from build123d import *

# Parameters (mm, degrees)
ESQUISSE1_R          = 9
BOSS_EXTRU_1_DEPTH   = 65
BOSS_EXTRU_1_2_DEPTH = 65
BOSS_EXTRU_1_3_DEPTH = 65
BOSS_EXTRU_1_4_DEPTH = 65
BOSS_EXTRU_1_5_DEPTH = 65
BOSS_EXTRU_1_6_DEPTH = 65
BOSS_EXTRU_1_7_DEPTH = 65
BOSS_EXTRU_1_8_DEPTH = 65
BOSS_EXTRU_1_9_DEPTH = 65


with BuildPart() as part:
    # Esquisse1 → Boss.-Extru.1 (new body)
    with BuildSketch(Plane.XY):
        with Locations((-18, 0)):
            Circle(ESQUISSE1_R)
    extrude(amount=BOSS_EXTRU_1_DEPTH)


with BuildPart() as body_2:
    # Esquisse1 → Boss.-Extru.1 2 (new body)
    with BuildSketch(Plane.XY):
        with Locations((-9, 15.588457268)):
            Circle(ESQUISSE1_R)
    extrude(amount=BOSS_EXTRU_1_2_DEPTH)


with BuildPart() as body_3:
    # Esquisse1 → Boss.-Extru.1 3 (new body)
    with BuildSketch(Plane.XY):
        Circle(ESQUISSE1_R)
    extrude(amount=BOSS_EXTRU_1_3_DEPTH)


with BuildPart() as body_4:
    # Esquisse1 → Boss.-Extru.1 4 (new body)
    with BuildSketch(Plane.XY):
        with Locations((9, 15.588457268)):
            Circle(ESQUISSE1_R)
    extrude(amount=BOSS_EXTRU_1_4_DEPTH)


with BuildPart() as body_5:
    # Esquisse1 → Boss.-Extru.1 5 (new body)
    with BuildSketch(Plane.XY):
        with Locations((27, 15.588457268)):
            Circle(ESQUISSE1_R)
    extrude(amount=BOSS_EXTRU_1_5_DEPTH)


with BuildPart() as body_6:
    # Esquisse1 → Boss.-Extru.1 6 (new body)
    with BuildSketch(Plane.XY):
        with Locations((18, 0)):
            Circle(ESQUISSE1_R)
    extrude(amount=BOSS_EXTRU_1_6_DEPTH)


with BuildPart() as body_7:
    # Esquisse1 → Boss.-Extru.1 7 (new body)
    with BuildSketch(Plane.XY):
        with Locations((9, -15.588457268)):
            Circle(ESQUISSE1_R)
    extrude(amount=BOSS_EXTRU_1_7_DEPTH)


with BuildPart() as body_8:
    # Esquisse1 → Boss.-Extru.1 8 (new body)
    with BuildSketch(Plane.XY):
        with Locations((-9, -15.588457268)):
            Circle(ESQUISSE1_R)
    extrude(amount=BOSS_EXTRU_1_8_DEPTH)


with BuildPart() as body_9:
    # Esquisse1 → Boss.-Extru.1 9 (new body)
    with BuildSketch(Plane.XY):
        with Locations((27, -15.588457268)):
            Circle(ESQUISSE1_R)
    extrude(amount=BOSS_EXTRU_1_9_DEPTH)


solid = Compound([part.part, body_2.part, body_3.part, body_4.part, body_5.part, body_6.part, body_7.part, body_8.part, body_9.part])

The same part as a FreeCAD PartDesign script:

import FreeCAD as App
import Part
import Sketcher
from FreeCAD import Vector

doc = App.newDocument("Part")
params = doc.addObject("Spreadsheet::Sheet", "Params")
for row, (alias, value) in enumerate([
    ("sketch1_diameter", "18 mm"),
    ("pad1_length", "65 mm"),
    ("sketch2_diameter", "18 mm"),
    ("pad2_length", "65 mm"),
    ("sketch3_diameter", "18 mm"),
    ("pad3_length", "65 mm"),
    ("sketch4_diameter", "18 mm"),
    ("pad4_length", "65 mm"),
    ("sketch5_diameter", "18 mm"),
    ("pad5_length", "65 mm"),
    ("sketch6_diameter", "18 mm"),
    ("pad6_length", "65 mm"),
    ("sketch7_diameter", "18 mm"),
    ("pad7_length", "65 mm"),
    ("sketch8_diameter", "18 mm"),
    ("pad8_length", "65 mm"),
    ("sketch9_diameter", "18 mm"),
    ("pad9_length", "65 mm"),
], start=1):
    params.set(f"A{row}", alias)
    params.set(f"B{row}", "=" + value)
    params.setAlias(f"B{row}", alias)

body = doc.addObject("PartDesign::Body", "Body")

# Sketch on XY plane
sketch1 = body.newObject("Sketcher::SketchObject", "Sketch")
sketch1.AttachmentSupport = (doc.getObject("XY_Plane"), [""])
sketch1.MapMode = "FlatFace"
sketch1.addGeometry(Part.Circle(Vector(-18, 0, 0), Vector(0, 0, 1), 9), False)
sketch1.addConstraint(Sketcher.Constraint("PointOnObject", 0, 3, -1))
sketch1.addConstraint(Sketcher.Constraint("Diameter", 0, 18.0))
sketch1.addConstraint(Sketcher.Constraint("DistanceX", 0, 3, -1, 1, 18.0))
sketch1.setExpression("Constraints[1]", "Params.sketch1_diameter")
pad1 = body.newObject("PartDesign::Pad", "Pad")
pad1.Profile = sketch1
pad1.setExpression("Length", "Params.pad1_length")
body2 = doc.addObject("PartDesign::Body", "Body001")

# Sketch on XY plane
sketch2 = body2.newObject("Sketcher::SketchObject", "Sketch001")
sketch2.AttachmentSupport = (doc.getObject("XY_Plane001"), [""])
sketch2.MapMode = "FlatFace"
sketch2.addGeometry(Part.Circle(Vector(-9, 16, 0), Vector(0, 0, 1), 9), False)
sketch2.addConstraint(Sketcher.Constraint("Diameter", 0, 18.0))
sketch2.addConstraint(Sketcher.Constraint("DistanceX", 0, 3, -1, 1, 9.0))
sketch2.addConstraint(Sketcher.Constraint("DistanceY", -1, 1, 0, 3, 15.588457))
sketch2.setExpression("Constraints[0]", "Params.sketch2_diameter")
pad2 = body2.newObject("PartDesign::Pad", "Pad001")
pad2.Profile = sketch2
pad2.setExpression("Length", "Params.pad2_length")
body3 = doc.addObject("PartDesign::Body", "Body002")

# Sketch on XY plane
sketch3 = body3.newObject("Sketcher::SketchObject", "Sketch002")
sketch3.AttachmentSupport = (doc.getObject("XY_Plane002"), [""])
sketch3.MapMode = "FlatFace"
sketch3.addGeometry(Part.Circle(Vector(0, 0, 0), Vector(0, 0, 1), 9), False)
sketch3.addConstraint(Sketcher.Constraint("Coincident", 0, 3, -1, 1))
sketch3.addConstraint(Sketcher.Constraint("Diameter", 0, 18.0))
sketch3.setExpression("Constraints[1]", "Params.sketch3_diameter")
pad3 = body3.newObject("PartDesign::Pad", "Pad002")
pad3.Profile = sketch3
pad3.setExpression("Length", "Params.pad3_length")
body4 = doc.addObject("PartDesign::Body", "Body003")

# Sketch on XY plane
sketch4 = body4.newObject("Sketcher::SketchObject", "Sketch003")
sketch4.AttachmentSupport = (doc.getObject("XY_Plane003"), [""])
sketch4.MapMode = "FlatFace"
sketch4.addGeometry(Part.Circle(Vector(9, 16, 0), Vector(0, 0, 1), 9), False)
sketch4.addConstraint(Sketcher.Constraint("Diameter", 0, 18.0))
sketch4.addConstraint(Sketcher.Constraint("DistanceX", -1, 1, 0, 3, 9.0))
sketch4.addConstraint(Sketcher.Constraint("DistanceY", -1, 1, 0, 3, 15.588457))
sketch4.setExpression("Constraints[0]", "Params.sketch4_diameter")
pad4 = body4.newObject("PartDesign::Pad", "Pad003")
pad4.Profile = sketch4
pad4.setExpression("Length", "Params.pad4_length")
body5 = doc.addObject("PartDesign::Body", "Body004")

# Sketch on XY plane
sketch5 = body5.newObject("Sketcher::SketchObject", "Sketch004")
sketch5.AttachmentSupport = (doc.getObject("XY_Plane004"), [""])
sketch5.MapMode = "FlatFace"
sketch5.addGeometry(Part.Circle(Vector(27, 16, 0), Vector(0, 0, 1), 9), False)
sketch5.addConstraint(Sketcher.Constraint("Diameter", 0, 18.0))
sketch5.addConstraint(Sketcher.Constraint("DistanceX", -1, 1, 0, 3, 27.0))
sketch5.addConstraint(Sketcher.Constraint("DistanceY", -1, 1, 0, 3, 15.588457))
sketch5.setExpression("Constraints[0]", "Params.sketch5_diameter")
pad5 = body5.newObject("PartDesign::Pad", "Pad004")
pad5.Profile = sketch5
pad5.setExpression("Length", "Params.pad5_length")
body6 = doc.addObject("PartDesign::Body", "Body005")

# Sketch on XY plane
sketch6 = body6.newObject("Sketcher::SketchObject", "Sketch005")
sketch6.AttachmentSupport = (doc.getObject("XY_Plane005"), [""])
sketch6.MapMode = "FlatFace"
sketch6.addGeometry(Part.Circle(Vector(18, 0, 0), Vector(0, 0, 1), 9), False)
sketch6.addConstraint(Sketcher.Constraint("PointOnObject", 0, 3, -1))
sketch6.addConstraint(Sketcher.Constraint("Diameter", 0, 18.0))
sketch6.addConstraint(Sketcher.Constraint("DistanceX", -1, 1, 0, 3, 18.0))
sketch6.setExpression("Constraints[1]", "Params.sketch6_diameter")
pad6 = body6.newObject("PartDesign::Pad", "Pad005")
pad6.Profile = sketch6
pad6.setExpression("Length", "Params.pad6_length")
body7 = doc.addObject("PartDesign::Body", "Body006")

# Sketch on XY plane
sketch7 = body7.newObject("Sketcher::SketchObject", "Sketch006")
sketch7.AttachmentSupport = (doc.getObject("XY_Plane006"), [""])
sketch7.MapMode = "FlatFace"
sketch7.addGeometry(Part.Circle(Vector(9, -16, 0), Vector(0, 0, 1), 9), False)
sketch7.addConstraint(Sketcher.Constraint("Diameter", 0, 18.0))
sketch7.addConstraint(Sketcher.Constraint("DistanceX", -1, 1, 0, 3, 9.0))
sketch7.addConstraint(Sketcher.Constraint("DistanceY", 0, 3, -1, 1, 15.588457))
sketch7.setExpression("Constraints[0]", "Params.sketch7_diameter")
pad7 = body7.newObject("PartDesign::Pad", "Pad006")
pad7.Profile = sketch7
pad7.setExpression("Length", "Params.pad7_length")
body8 = doc.addObject("PartDesign::Body", "Body007")

# Sketch on XY plane
sketch8 = body8.newObject("Sketcher::SketchObject", "Sketch007")
sketch8.AttachmentSupport = (doc.getObject("XY_Plane007"), [""])
sketch8.MapMode = "FlatFace"
sketch8.addGeometry(Part.Circle(Vector(-9, -16, 0), Vector(0, 0, 1), 9), False)
sketch8.addConstraint(Sketcher.Constraint("Diameter", 0, 18.0))
sketch8.addConstraint(Sketcher.Constraint("DistanceX", 0, 3, -1, 1, 9.0))
sketch8.addConstraint(Sketcher.Constraint("DistanceY", 0, 3, -1, 1, 15.588457))
sketch8.setExpression("Constraints[0]", "Params.sketch8_diameter")
pad8 = body8.newObject("PartDesign::Pad", "Pad007")
pad8.Profile = sketch8
pad8.setExpression("Length", "Params.pad8_length")
body9 = doc.addObject("PartDesign::Body", "Body008")

# Sketch on XY plane
sketch9 = body9.newObject("Sketcher::SketchObject", "Sketch008")
sketch9.AttachmentSupport = (doc.getObject("XY_Plane008"), [""])
sketch9.MapMode = "FlatFace"
sketch9.addGeometry(Part.Circle(Vector(27, -16, 0), Vector(0, 0, 1), 9), False)
sketch9.addConstraint(Sketcher.Constraint("Diameter", 0, 18.0))
sketch9.addConstraint(Sketcher.Constraint("DistanceX", -1, 1, 0, 3, 27.0))
sketch9.addConstraint(Sketcher.Constraint("DistanceY", 0, 3, -1, 1, 15.588457))
sketch9.setExpression("Constraints[0]", "Params.sketch9_diameter")
pad9 = body9.newObject("PartDesign::Pad", "Pad008")
pad9.Profile = sketch9
pad9.setExpression("Length", "Params.pad9_length")

doc.recompute()
